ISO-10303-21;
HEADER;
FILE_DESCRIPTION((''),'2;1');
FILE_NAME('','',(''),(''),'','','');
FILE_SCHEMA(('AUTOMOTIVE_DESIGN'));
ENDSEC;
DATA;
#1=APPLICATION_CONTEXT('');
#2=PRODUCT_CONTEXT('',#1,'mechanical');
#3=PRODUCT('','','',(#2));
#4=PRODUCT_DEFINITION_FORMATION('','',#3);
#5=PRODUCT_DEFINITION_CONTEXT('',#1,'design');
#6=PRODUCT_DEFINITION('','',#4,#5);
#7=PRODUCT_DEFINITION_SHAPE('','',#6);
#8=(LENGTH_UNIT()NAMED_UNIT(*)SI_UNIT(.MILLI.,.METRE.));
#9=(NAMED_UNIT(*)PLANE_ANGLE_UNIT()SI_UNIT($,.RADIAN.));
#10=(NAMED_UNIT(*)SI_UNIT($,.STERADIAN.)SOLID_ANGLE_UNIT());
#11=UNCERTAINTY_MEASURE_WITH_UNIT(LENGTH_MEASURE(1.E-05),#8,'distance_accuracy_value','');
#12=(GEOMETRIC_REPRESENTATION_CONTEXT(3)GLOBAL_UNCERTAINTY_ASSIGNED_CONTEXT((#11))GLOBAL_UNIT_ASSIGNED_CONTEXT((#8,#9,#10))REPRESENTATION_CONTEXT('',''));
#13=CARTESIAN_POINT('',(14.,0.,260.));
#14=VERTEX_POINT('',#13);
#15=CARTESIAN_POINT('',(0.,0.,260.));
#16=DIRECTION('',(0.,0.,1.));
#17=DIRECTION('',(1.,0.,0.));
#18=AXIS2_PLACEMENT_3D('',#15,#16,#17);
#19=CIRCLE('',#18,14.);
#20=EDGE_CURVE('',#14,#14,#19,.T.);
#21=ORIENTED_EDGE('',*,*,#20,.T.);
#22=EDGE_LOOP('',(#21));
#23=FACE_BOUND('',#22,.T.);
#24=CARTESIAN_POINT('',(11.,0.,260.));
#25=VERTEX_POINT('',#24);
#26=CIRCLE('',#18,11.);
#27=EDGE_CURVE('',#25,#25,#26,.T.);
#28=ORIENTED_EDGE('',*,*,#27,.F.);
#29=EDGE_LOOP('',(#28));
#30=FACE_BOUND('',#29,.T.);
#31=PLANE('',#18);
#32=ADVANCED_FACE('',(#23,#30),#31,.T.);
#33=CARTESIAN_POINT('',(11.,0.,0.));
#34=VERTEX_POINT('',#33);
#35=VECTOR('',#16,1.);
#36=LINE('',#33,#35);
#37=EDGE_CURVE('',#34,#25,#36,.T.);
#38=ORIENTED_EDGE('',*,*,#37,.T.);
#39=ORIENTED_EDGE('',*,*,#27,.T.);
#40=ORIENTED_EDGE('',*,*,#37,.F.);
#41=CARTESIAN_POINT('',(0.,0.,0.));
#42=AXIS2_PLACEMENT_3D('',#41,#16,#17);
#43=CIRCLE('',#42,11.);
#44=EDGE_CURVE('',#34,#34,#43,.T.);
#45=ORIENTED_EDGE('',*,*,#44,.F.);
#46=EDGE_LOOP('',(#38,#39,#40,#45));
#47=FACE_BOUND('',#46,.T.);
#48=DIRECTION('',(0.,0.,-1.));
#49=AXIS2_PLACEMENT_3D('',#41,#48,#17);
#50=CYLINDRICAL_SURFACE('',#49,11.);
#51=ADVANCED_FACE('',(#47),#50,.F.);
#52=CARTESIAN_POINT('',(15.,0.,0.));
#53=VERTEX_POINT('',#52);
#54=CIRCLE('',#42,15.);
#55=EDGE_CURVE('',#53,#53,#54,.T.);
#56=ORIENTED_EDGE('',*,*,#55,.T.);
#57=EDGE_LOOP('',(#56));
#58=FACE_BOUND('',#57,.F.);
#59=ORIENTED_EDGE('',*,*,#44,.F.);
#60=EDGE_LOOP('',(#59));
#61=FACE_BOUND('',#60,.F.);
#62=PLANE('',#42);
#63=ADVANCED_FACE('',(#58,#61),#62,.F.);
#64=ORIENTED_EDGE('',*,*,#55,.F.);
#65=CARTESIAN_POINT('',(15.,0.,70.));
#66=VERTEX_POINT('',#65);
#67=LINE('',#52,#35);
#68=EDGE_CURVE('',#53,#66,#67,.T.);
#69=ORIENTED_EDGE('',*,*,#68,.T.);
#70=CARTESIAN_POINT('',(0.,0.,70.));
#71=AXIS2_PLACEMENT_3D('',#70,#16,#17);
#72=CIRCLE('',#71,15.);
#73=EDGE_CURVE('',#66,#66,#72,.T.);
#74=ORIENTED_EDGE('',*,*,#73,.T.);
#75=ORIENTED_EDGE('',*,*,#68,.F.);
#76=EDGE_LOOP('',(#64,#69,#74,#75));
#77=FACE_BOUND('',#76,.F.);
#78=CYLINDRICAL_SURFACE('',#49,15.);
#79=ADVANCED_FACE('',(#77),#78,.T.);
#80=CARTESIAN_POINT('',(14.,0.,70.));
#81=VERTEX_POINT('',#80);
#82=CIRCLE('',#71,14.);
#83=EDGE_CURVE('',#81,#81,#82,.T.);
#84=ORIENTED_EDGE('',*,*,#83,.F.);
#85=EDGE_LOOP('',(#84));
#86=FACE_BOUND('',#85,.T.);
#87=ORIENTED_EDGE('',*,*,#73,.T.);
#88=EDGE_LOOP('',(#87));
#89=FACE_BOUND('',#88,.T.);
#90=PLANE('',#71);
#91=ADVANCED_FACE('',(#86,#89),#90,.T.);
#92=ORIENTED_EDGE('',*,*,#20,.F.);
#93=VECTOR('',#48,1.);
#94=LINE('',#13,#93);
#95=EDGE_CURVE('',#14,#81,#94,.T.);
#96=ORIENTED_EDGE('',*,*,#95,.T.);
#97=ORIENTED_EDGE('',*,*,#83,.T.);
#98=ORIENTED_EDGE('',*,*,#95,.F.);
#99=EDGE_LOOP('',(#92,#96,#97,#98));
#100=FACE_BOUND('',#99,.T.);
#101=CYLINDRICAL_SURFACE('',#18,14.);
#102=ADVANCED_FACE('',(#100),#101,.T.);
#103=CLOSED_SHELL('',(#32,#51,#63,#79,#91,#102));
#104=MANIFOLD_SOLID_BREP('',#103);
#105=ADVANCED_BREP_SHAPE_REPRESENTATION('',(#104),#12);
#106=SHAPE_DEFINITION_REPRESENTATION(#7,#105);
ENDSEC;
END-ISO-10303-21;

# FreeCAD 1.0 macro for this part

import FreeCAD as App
import Part
import Sketcher
Q = App.Units.Quantity

doc = App.newDocument("Part")
body = doc.addObject("PartDesign::Body", "Body")

sketch1 = doc.addObject("Sketcher::SketchObject", "Sketch")
body.addObject(sketch1)
sketch1.AttachmentSupport = (doc.XY_Plane, [""])
sketch1.MapMode = "FlatFace"
sketch1.addGeometry([
    Part.Circle(App.Vector(0, 0, 0), App.Vector(0, 0, 1), 15),
    Part.Circle(App.Vector(0, 0, 0), App.Vector(0, 0, 1), 11),
], False)
sketch1.addConstraint([
    Sketcher.Constraint("Coincident", 0, 3, -1, 1),
    Sketcher.Constraint("Coincident", 1, 3, -1, 1),
    Sketcher.Constraint("Diameter", 0, Q("30 mm")),
    Sketcher.Constraint("Diameter", 1, Q("22 mm")),
])
pad1 = doc.addObject("PartDesign::Pad", "Pad")
body.addObject(pad1)
pad1.Profile = sketch1
pad1.Length = 260

sketch2 = doc.addObject("Sketcher::SketchObject", "Sketch001")
body.addObject(sketch2)
sketch2.AttachmentSupport = (doc.XY_Plane, [""])
sketch2.MapMode = "FlatFace"
sketch2.AttachmentOffset = App.Placement(App.Vector(0, 0, 260), App.Rotation())
sketch2.addGeometry([
    Part.Circle(App.Vector(0, 0, 0), App.Vector(0, 0, 1), 15),
    Part.Circle(App.Vector(0, 0, 0), App.Vector(0, 0, 1), 14),
], False)
sketch2.addConstraint([
    Sketcher.Constraint("Coincident", 0, 3, -1, 1),
    Sketcher.Constraint("Coincident", 1, 3, -1, 1),
    Sketcher.Constraint("Diameter", 0, Q("30 mm")),
    Sketcher.Constraint("Diameter", 1, Q("28 mm")),
])
pocket1 = doc.addObject("PartDesign::Pocket", "Pocket")
body.addObject(pocket1)
pocket1.Profile = sketch2
pocket1.Length = 190

doc.recompute()
